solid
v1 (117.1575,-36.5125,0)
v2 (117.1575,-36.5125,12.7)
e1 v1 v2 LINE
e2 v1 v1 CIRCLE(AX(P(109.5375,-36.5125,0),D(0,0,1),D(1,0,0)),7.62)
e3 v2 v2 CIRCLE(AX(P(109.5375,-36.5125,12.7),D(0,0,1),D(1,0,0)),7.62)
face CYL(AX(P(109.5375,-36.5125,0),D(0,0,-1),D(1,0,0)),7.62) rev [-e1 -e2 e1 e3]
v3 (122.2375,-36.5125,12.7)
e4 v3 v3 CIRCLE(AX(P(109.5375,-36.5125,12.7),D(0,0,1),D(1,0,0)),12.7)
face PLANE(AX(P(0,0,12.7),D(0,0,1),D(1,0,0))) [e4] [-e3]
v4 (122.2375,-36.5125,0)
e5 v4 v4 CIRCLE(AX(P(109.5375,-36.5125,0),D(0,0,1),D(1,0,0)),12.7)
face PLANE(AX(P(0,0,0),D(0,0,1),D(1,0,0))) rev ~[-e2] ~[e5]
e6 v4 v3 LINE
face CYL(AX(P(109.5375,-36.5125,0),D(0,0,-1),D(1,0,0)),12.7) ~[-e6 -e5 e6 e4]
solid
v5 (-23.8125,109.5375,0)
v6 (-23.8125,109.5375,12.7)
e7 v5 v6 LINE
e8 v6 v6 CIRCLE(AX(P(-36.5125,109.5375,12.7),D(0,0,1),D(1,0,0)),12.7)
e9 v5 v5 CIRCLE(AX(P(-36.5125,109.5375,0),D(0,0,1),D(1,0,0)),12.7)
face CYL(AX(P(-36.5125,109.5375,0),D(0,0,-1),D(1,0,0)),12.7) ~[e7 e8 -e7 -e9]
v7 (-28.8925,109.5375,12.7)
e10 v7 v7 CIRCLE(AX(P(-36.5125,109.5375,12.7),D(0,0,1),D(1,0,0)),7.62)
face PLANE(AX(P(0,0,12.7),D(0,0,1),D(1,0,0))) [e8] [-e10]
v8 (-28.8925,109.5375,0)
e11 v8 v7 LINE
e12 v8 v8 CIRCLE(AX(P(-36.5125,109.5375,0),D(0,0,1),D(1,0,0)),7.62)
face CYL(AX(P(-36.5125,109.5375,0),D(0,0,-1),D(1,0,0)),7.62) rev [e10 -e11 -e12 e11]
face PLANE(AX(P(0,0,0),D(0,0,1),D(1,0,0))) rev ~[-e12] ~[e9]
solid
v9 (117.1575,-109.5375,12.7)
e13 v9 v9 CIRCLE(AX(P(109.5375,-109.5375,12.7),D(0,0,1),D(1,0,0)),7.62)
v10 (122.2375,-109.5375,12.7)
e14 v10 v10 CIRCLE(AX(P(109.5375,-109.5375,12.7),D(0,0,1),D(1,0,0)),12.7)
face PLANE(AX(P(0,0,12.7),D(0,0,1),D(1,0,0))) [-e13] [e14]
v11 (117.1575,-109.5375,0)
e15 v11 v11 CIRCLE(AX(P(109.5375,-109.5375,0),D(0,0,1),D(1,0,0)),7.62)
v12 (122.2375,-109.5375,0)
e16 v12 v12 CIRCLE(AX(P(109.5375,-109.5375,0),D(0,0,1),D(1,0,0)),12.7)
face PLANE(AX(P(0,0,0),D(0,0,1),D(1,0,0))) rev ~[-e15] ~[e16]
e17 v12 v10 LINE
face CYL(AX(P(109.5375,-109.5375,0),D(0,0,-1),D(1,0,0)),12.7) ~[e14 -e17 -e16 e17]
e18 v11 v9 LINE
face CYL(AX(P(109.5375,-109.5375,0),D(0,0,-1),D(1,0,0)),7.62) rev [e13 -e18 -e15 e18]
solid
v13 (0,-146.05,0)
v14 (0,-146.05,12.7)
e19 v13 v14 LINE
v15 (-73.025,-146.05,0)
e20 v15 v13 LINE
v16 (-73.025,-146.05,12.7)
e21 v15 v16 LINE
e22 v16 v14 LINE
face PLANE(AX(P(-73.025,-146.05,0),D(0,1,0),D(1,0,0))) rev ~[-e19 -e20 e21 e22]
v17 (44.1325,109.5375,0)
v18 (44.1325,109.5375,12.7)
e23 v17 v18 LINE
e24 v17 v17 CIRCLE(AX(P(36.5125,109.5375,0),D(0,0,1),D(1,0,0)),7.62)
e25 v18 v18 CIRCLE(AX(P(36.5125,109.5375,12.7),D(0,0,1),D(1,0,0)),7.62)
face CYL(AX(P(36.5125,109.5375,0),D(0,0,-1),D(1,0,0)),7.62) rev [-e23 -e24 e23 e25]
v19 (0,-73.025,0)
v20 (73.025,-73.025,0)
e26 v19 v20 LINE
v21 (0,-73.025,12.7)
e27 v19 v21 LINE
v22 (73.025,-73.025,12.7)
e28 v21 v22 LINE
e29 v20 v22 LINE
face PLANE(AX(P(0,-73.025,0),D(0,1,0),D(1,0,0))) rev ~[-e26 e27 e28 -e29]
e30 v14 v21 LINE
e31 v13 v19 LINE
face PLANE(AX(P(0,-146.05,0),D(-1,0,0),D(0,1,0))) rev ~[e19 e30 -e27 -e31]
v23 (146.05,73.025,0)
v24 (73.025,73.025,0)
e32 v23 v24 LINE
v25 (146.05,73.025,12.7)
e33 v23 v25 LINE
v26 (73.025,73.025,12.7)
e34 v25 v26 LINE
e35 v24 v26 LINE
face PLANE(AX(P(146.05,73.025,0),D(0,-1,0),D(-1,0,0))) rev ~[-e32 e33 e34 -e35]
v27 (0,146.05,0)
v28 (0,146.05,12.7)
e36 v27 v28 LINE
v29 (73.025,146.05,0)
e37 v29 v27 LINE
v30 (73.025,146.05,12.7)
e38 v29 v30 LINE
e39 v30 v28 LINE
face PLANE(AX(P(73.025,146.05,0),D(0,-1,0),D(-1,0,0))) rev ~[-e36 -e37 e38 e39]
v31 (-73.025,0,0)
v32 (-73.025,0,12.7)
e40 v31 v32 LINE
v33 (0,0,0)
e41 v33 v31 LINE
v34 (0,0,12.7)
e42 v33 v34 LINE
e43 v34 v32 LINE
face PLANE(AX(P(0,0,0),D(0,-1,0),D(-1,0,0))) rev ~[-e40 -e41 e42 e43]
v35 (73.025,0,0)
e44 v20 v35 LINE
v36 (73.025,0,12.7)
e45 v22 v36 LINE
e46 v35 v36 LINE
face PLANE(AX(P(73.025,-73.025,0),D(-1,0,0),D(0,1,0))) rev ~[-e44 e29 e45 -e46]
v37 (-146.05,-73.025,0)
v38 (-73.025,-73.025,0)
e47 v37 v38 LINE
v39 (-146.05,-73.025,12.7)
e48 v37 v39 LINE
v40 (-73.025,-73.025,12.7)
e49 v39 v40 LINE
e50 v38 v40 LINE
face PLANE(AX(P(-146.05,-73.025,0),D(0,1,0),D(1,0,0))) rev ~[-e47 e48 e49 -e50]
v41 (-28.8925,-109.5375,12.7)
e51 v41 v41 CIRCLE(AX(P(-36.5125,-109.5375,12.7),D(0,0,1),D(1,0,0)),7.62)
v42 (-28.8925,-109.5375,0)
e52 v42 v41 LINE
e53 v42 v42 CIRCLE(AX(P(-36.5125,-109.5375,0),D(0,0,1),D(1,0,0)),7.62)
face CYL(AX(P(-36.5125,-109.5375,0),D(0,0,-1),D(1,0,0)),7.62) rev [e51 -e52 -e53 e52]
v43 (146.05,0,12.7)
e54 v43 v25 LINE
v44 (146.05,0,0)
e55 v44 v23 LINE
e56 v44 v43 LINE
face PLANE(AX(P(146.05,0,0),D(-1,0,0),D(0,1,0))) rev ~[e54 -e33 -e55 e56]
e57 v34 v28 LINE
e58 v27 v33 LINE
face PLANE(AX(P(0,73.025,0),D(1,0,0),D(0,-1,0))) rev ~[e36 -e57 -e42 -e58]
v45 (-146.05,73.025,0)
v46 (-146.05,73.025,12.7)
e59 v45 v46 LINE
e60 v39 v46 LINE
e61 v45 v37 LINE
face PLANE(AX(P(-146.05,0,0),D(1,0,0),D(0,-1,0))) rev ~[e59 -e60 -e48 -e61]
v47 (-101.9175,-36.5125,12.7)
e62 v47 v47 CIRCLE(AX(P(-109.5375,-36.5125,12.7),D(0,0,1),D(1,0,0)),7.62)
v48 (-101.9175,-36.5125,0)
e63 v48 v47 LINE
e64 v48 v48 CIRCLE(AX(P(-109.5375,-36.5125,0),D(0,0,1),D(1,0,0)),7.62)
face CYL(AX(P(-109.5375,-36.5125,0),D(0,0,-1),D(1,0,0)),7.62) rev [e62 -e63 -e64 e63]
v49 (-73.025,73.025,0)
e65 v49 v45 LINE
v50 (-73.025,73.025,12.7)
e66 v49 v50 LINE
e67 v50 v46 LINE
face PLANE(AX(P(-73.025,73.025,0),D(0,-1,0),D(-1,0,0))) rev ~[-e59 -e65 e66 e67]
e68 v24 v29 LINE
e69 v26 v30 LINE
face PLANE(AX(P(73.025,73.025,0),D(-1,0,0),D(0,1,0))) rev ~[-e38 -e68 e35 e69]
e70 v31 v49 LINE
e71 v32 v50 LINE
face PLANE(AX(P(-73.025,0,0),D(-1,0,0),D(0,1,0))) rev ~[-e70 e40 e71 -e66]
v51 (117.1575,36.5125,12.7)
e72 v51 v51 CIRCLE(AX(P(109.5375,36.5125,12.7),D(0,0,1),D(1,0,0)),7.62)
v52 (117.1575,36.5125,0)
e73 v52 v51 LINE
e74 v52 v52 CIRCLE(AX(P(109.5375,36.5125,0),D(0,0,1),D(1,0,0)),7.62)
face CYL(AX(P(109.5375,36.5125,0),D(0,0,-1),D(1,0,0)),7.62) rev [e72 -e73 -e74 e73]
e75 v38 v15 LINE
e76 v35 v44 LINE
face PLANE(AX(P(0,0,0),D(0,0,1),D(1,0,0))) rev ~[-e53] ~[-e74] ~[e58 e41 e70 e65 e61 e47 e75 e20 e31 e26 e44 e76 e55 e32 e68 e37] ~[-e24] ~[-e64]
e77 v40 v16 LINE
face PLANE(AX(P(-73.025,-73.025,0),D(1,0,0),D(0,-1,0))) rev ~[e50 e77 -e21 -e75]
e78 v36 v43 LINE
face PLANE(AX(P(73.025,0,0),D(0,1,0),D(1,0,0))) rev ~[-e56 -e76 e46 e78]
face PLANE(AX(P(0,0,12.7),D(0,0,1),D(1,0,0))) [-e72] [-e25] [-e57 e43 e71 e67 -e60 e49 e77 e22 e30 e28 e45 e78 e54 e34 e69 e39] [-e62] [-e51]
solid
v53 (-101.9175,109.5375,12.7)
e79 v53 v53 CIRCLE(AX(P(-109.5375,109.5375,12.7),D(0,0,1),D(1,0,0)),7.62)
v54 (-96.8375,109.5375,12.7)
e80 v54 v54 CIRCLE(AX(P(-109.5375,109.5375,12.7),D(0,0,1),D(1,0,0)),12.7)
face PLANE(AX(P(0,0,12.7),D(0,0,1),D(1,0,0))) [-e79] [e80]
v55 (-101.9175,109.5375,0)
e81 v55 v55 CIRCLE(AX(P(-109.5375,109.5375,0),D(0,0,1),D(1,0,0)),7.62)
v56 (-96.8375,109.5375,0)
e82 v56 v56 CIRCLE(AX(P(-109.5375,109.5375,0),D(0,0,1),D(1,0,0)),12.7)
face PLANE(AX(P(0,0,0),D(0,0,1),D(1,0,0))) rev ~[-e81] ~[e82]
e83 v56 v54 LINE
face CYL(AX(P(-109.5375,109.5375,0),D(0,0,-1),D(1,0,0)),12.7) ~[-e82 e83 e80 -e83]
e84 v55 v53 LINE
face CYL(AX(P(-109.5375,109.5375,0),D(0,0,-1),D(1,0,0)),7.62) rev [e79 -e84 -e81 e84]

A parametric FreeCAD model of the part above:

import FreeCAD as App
import Part
import Sketcher
from FreeCAD import Vector
Q = App.Units.Quantity

doc = App.newDocument("Part")
params = doc.addObject("Spreadsheet::Sheet", "Params")
for row, (alias, value) in enumerate([
    ("sketch1_diameter", "1 in"),
    ("sketch1_diameter2", "0.6 in"),
    ("sketch1_height", "5.75 in"),
    ("pad1_length", "0.5 in"),
], start=1):
    params.set(f"A{row}", alias)
    params.set(f"B{row}", "=" + value)
    params.setAlias(f"B{row}", alias)

body = doc.addObject("PartDesign::Body", "Body")
body.AllowCompound = True

# Sketch on XY plane
sketch1 = body.newObject("Sketcher::SketchObject", "Sketch")
sketch1.AttachmentSupport = (doc.getObject("XY_Plane"), [""])
sketch1.MapMode = "FlatFace"
sketch1.addGeometry(Part.LineSegment(Vector(-73, 73, 0), Vector(-146, 73, 0)), False)
sketch1.addGeometry(Part.LineSegment(Vector(-146, 73, 0), Vector(-146, -73, 0)), False)
sketch1.addGeometry(Part.LineSegment(Vector(-146, -73, 0), Vector(-73, -73, 0)), False)
sketch1.addGeometry(Part.LineSegment(Vector(-73, -73, 0), Vector(-73, -146, 0)), False)
sketch1.addGeometry(Part.LineSegment(Vector(-73, -146, 0), Vector(0, -146, 0)), False)
sketch1.addGeometry(Part.LineSegment(Vector(0, -146, 0), Vector(0, -73, 0)), False)
sketch1.addGeometry(Part.LineSegment(Vector(0, -73, 0), Vector(73, -73, 0)), False)
sketch1.addGeometry(Part.LineSegment(Vector(73, -73, 0), Vector(73, 0, 0)), False)
sketch1.addGeometry(Part.LineSegment(Vector(73, 0, 0), Vector(146, 0, 0)), False)
sketch1.addGeometry(Part.LineSegment(Vector(146, 0, 0), Vector(146, 73, 0)), False)
sketch1.addGeometry(Part.LineSegment(Vector(146, 73, 0), Vector(73, 73, 0)), False)
sketch1.addGeometry(Part.LineSegment(Vector(73, 73, 0), Vector(73, 146, 0)), False)
sketch1.addGeometry(Part.LineSegment(Vector(73, 146, 0), Vector(0, 146, 0)), False)
sketch1.addGeometry(Part.LineSegment(Vector(0, 146, 0), Vector(0, 0, 0)), False)
sketch1.addGeometry(Part.LineSegment(Vector(0, 0, 0), Vector(-73, 0, 0)), False)
sketch1.addGeometry(Part.LineSegment(Vector(-73, 0, 0), Vector(-73, 73, 0)), False)
sketch1.addGeometry(Part.Circle(Vector(-37, -110, 0), Vector(0, 0, 1), 8), False)
sketch1.addGeometry(Part.Circle(Vector(-110, -37, 0), Vector(0, 0, 1), 8), False)
sketch1.addGeometry(Part.Circle(Vector(110, 37, 0), Vector(0, 0, 1), 8), False)
sketch1.addGeometry(Part.Circle(Vector(37, 110, 0), Vector(0, 0, 1), 8), False)
sketch1.addGeometry(Part.Circle(Vector(-37, 110, 0), Vector(0, 0, 1), 13), False)
sketch1.addGeometry(Part.Circle(Vector(-37, 110, 0), Vector(0, 0, 1), 8), False)
sketch1.addGeometry(Part.Circle(Vector(-110, 110, 0), Vector(0, 0, 1), 13), False)
sketch1.addGeometry(Part.Circle(Vector(-110, 110, 0), Vector(0, 0, 1), 8), False)
sketch1.addGeometry(Part.Circle(Vector(110, -37, 0), Vector(0, 0, 1), 13), False)
sketch1.addGeometry(Part.Circle(Vector(110, -37, 0), Vector(0, 0, 1), 8), False)
sketch1.addGeometry(Part.Circle(Vector(110, -110, 0), Vector(0, 0, 1), 13), False)
sketch1.addGeometry(Part.Circle(Vector(110, -110, 0), Vector(0, 0, 1), 8), False)
sketch1.addConstraint(Sketcher.Constraint("Coincident", 0, 2, 1, 1))
sketch1.addConstraint(Sketcher.Constraint("Coincident", 1, 2, 2, 1))
sketch1.addConstraint(Sketcher.Constraint("Coincident", 2, 2, 3, 1))
sketch1.addConstraint(Sketcher.Constraint("Coincident", 3, 2, 4, 1))
sketch1.addConstraint(Sketcher.Constraint("Coincident", 4, 2, 5, 1))
sketch1.addConstraint(Sketcher.Constraint("Coincident", 5, 2, 6, 1))
sketch1.addConstraint(Sketcher.Constraint("Coincident", 6, 2, 7, 1))
sketch1.addConstraint(Sketcher.Constraint("Coincident", 7, 2, 8, 1))
sketch1.addConstraint(Sketcher.Constraint("Coincident", 8, 2, 9, 1))
sketch1.addConstraint(Sketcher.Constraint("Coincident", 9, 2, 10, 1))
sketch1.addConstraint(Sketcher.Constraint("Coincident", 10, 2, 11, 1))
sketch1.addConstraint(Sketcher.Constraint("Coincident", 11, 2, 12, 1))
sketch1.addConstraint(Sketcher.Constraint("Coincident", 12, 2, 13, 1))
sketch1.addConstraint(Sketcher.Constraint("Coincident", 13, 2, 14, 1))
sketch1.addConstraint(Sketcher.Constraint("Coincident", 14, 2, 15, 1))
sketch1.addConstraint(Sketcher.Constraint("Coincident", 15, 2, 0, 1))
sketch1.addConstraint(Sketcher.Constraint("Horizontal", 0))
sketch1.addConstraint(Sketcher.Constraint("Vertical", 1))
sketch1.addConstraint(Sketcher.Constraint("Horizontal", 2))
sketch1.addConstraint(Sketcher.Constraint("Vertical", 3))
sketch1.addConstraint(Sketcher.Constraint("Horizontal", 4))
sketch1.addConstraint(Sketcher.Constraint("Vertical", 5))
sketch1.addConstraint(Sketcher.Constraint("Horizontal", 6))
sketch1.addConstraint(Sketcher.Constraint("Vertical", 7))
sketch1.addConstraint(Sketcher.Constraint("Horizontal", 8))
sketch1.addConstraint(Sketcher.Constraint("Vertical", 9))
sketch1.addConstraint(Sketcher.Constraint("Horizontal", 10))
sketch1.addConstraint(Sketcher.Constraint("Vertical", 11))
sketch1.addConstraint(Sketcher.Constraint("Horizontal", 12))
sketch1.addConstraint(Sketcher.Constraint("Vertical", 13))
sketch1.addConstraint(Sketcher.Constraint("Horizontal", 14))
sketch1.addConstraint(Sketcher.Constraint("Vertical", 15))
sketch1.addConstraint(Sketcher.Constraint("Coincident", 13, 2, -1, 1))
sketch1.addConstraint(Sketcher.Constraint("Coincident", 21, 3, 20, 3))
sketch1.addConstraint(Sketcher.Constraint("Coincident", 23, 3, 22, 3))
sketch1.addConstraint(Sketcher.Constraint("Coincident", 25, 3, 24, 3))
sketch1.addConstraint(Sketcher.Constraint("Coincident", 27, 3, 26, 3))
sketch1.addConstraint(Sketcher.Constraint("Equal", 16, 17))
sketch1.addConstraint(Sketcher.Constraint("Equal", 17, 18))
sketch1.addConstraint(Sketcher.Constraint("Equal", 18, 19))
sketch1.addConstraint(Sketcher.Constraint("Equal", 19, 21))
sketch1.addConstraint(Sketcher.Constraint("Equal", 20, 22))
sketch1.addConstraint(Sketcher.Constraint("Equal", 21, 23))
sketch1.addConstraint(Sketcher.Constraint("Equal", 22, 24))
sketch1.addConstraint(Sketcher.Constraint("Equal", 23, 25))
sketch1.addConstraint(Sketcher.Constraint("Equal", 24, 26))
sketch1.addConstraint(Sketcher.Constraint("Equal", 25, 27))
sketch1.addConstraint(Sketcher.Constraint("Symmetric", 17, 3, 18, 3, -1, 1))
sketch1.addConstraint(Sketcher.Constraint("Symmetric", 16, 3, 19, 3, -1, 1))
sketch1.addConstraint(Sketcher.Constraint("Symmetric", 22, 3, 26, 3, -1, 1))
sketch1.addConstraint(Sketcher.Constraint("Symmetric", 1, 2, 9, 2, -1, 1))
sketch1.addConstraint(Sketcher.Constraint("Symmetric", 3, 2, 11, 2, -1, 1))
sketch1.addConstraint(Sketcher.Constraint("Symmetric", 7, 2, 14, 2, -1, 1))
sketch1.addConstraint(Sketcher.Constraint("Symmetric", 19, 3, 20, 3, -2))
sketch1.addConstraint(Sketcher.Constraint("Symmetric", 17, 3, 24, 3, -2))
sketch1.addConstraint(Sketcher.Constraint("Symmetric", 2, 2, 6, 2, -2))
sketch1.addConstraint(Sketcher.Constraint("PointOnObject", 4, 2, -2))
sketch1.addConstraint(Sketcher.Constraint("Horizontal", 21, 3, 22, 3))
sketch1.addConstraint(Sketcher.Constraint("Horizontal", 0, 2, 9, 2))
sketch1.addConstraint(Sketcher.Constraint("Vertical", 17, 3, 22, 3))
sketch1.addConstraint(Sketcher.Constraint("Equal", 2, 4))
sketch1.addConstraint(Sketcher.Constraint("Equal", 14, 3))
sketch1.addConstraint(Sketcher.Constraint("Equal", 5, 7))
sketch1.addConstraint(Sketcher.Constraint("Diameter", 20, Q("1 in")))
sketch1.addConstraint(Sketcher.Constraint("Diameter", 16, Q("0.6 in")))
sketch1.addConstraint(Sketcher.Constraint("DistanceY", 1, 2, 1, 1, Q("5.75 in")))
sketch1.addConstraint(Sketcher.Constraint("DistanceX", 16, 3, 18, 3, Q("5.75 in")))
sketch1.addConstraint(Sketcher.Constraint("DistanceY", 16, 3, 18, 3, Q("5.75 in")))
sketch1.addConstraint(Sketcher.Constraint("DistanceX", 16, 3, -1, 1, Q("1.4375 in")))
sketch1.addConstraint(Sketcher.Constraint("DistanceY", 16, 3, -1, 1, Q("4.3125 in")))
sketch1.setExpression("Constraints[63]", "Params.sketch1_diameter")
sketch1.setExpression("Constraints[64]", "Params.sketch1_diameter2")
sketch1.setExpression("Constraints[65]", "Params.sketch1_height")
pad1 = body.newObject("PartDesign::Pad", "Pad")
pad1.Profile = sketch1
pad1.setExpression("Length", "Params.pad1_length")

doc.recompute()
